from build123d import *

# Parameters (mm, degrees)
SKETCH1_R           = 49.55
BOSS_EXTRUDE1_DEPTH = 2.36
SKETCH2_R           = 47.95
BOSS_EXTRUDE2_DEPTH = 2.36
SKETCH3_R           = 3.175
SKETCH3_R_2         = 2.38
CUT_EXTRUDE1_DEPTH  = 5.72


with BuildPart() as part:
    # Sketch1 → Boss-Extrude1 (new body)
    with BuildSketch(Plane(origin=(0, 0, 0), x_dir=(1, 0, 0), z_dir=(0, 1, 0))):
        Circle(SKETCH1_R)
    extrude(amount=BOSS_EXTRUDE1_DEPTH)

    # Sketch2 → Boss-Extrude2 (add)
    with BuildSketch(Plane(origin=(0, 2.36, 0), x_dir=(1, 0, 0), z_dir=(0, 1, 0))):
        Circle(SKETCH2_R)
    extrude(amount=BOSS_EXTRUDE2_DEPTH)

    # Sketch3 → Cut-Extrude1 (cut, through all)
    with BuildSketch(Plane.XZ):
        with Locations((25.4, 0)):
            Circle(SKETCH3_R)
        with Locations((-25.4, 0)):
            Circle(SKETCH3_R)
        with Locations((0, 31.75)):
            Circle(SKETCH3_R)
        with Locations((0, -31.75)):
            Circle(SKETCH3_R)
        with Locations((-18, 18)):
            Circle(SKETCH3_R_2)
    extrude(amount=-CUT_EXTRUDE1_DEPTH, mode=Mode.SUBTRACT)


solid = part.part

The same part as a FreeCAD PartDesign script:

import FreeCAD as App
import Part
import Sketcher
Q = App.Units.Quantity

doc = App.newDocument("Part")
body = doc.addObject("PartDesign::Body", "Body")

sketch1 = body.newObject("Sketcher::SketchObject", "Sketch")
sketch1.AttachmentSupport = (doc.getObject("XZ_Plane"), [""])
sketch1.MapMode = "FlatFace"
sketch1.addGeometry(Part.Circle(App.Vector(0, 0, 0), App.Vector(0, 0, 1), 49.55), False)
sketch1.addConstraint([
    Sketcher.Constraint("Coincident", 0, 3, -1, 1),
    Sketcher.Constraint("Diameter", 0, Q("99.1 mm")),
])
pad1 = body.newObject("PartDesign::Pad", "Pad")
pad1.Profile = sketch1
pad1.Length = 2.36
pad1.Reversed = True

sketch2 = body.newObject("Sketcher::SketchObject", "Sketch001")
sketch2.AttachmentSupport = (doc.getObject("XZ_Plane"), [""])
sketch2.MapMode = "FlatFace"
sketch2.AttachmentOffset = App.Placement(App.Vector(0, 0, -2.36), App.Rotation())
sketch2.addGeometry(Part.Circle(App.Vector(0, 0, 0), App.Vector(0, 0, 1), 47.95), False)
sketch2.addConstraint([
    Sketcher.Constraint("Coincident", 0, 3, -1, 1),
    Sketcher.Constraint("Diameter", 0, Q("95.9 mm")),
])
pad2 = body.newObject("PartDesign::Pad", "Pad001")
pad2.Profile = sketch2
pad2.Length = 2.36
pad2.Reversed = True

sketch3 = body.newObject("Sketcher::SketchObject", "Sketch002")
sketch3.AttachmentSupport = (doc.getObject("XZ_Plane"), [""])
sketch3.MapMode = "FlatFace"
sketch3.addGeometry([
    Part.Circle(App.Vector(25.4, 0, 0), App.Vector(0, 0, 1), 3.175),
    Part.Circle(App.Vector(-25.4, 0, 0), App.Vector(0, 0, 1), 3.175),
    Part.Circle(App.Vector(0, 31.75, 0), App.Vector(0, 0, 1), 3.175),
    Part.Circle(App.Vector(0, -31.75, 0), App.Vector(0, 0, 1), 3.175),
    Part.Circle(App.Vector(-18, 18, 0), App.Vector(0, 0, 1), 2.38),
], False)
sketch3.addConstraint([
    Sketcher.Constraint("Equal", 0, 1),
    Sketcher.Constraint("Equal", 1, 2),
    Sketcher.Constraint("Equal", 2, 3),
    Sketcher.Constraint("Symmetric", 0, 3, 1, 3, -1, 1),
    Sketcher.Constraint("Symmetric", 2, 3, 3, 3, -1, 1),
    Sketcher.Constraint("PointOnObject", 0, 3, -1),
    Sketcher.Constraint("PointOnObject", 2, 3, -2),
    Sketcher.Constraint("Diameter", 0, Q("6.35 mm")),
    Sketcher.Constraint("Diameter", 4, Q("4.76 mm")),
    Sketcher.Constraint("DistanceX", 4, 3, -1, 1, Q("18 mm")),
    Sketcher.Constraint("DistanceY", -1, 1, 4, 3, Q("18 mm")),
    Sketcher.Constraint("DistanceX", -1, 1, 0, 3, Q("25.4 mm")),
    Sketcher.Constraint("DistanceY", 3, 3, 2, 3, Q("63.5 mm")),
])
pocket1 = body.newObject("PartDesign::Pocket", "Pocket")
pocket1.Profile = sketch3
pocket1.Type = "ThroughAll"

doc.recompute()
